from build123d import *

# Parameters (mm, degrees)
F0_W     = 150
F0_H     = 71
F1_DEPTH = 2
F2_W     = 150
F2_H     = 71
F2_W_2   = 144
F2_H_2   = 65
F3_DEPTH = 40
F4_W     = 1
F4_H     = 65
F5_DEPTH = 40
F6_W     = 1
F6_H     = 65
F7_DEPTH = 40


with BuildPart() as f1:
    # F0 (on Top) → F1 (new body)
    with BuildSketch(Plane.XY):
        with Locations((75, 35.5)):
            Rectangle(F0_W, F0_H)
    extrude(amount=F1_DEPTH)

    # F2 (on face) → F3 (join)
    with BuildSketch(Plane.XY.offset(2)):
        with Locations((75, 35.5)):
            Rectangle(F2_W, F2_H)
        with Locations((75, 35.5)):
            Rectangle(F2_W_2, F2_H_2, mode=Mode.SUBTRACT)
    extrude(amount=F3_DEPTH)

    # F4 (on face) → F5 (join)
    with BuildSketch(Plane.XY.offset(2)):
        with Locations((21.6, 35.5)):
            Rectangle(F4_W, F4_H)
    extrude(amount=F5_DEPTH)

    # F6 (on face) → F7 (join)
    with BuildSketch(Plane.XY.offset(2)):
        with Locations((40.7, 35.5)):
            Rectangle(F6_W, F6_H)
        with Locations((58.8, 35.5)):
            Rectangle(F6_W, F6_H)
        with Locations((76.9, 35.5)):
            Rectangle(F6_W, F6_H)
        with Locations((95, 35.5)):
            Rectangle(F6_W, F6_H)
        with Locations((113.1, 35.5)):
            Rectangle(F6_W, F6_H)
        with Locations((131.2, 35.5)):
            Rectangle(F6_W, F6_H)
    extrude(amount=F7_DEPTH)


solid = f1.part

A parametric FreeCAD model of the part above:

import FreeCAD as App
import Part
import Sketcher

V = App.Vector
Q = App.Units.Quantity


def add_polygon(sketch, points):
    """Adds a closed chain of lines whose ends are joined by coincident constraints."""
    first, n = sketch.GeometryCount, len(points)
    for a, b in zip(points, points[1:] + points[:1]):
        sketch.addGeometry(Part.LineSegment(App.Vector(*a, 0), App.Vector(*b, 0)), False)
    for i in range(n):
        sketch.addConstraint(Sketcher.Constraint("Coincident", first + i, 2, first + (i + 1) % n, 1))

doc = App.newDocument("Part")
params = doc.addObject("Spreadsheet::Sheet", "Params")
for row, (alias, value) in enumerate([
    ("sketch1_width", "150 mm"),
    ("sketch1_height", "71 mm"),
    ("pad1_length", "2 mm"),
    ("sketch2_width", "150 mm"),
    ("sketch2_width2", "144 mm"),
    ("sketch2_height", "71 mm"),
    ("sketch2_height2", "65 mm"),
    ("pad2_length", "40 mm"),
    ("sketch3_width", "1 mm"),
    ("sketch3_height", "65 mm"),
    ("pad3_length", "40 mm"),
    ("sketch4_width", "1 mm"),
    ("sketch4_height", "65 mm"),
    ("pad4_length", "40 mm"),
], start=1):
    params.set(f"A{row}", alias)
    params.set(f"B{row}", "=" + value)
    params.setAlias(f"B{row}", alias)

body = doc.addObject("PartDesign::Body", "Body")

sketch1 = doc.addObject("Sketcher::SketchObject", "Sketch")
body.addObject(sketch1)
sketch1.AttachmentSupport = (doc.XY_Plane, [""])
sketch1.MapMode = "FlatFace"
add_polygon(sketch1, [(0, 71), (0, 0), (150, 0), (150, 71)])
sketch1.addConstraint(Sketcher.Constraint("Vertical", 0))
sketch1.addConstraint(Sketcher.Constraint("Horizontal", 1))
sketch1.addConstraint(Sketcher.Constraint("Vertical", 2))
sketch1.addConstraint(Sketcher.Constraint("Horizontal", 3))
sketch1.addConstraint(Sketcher.Constraint("Coincident", 0, 2, -1, 1))
sketch1.addConstraint(Sketcher.Constraint("DistanceX", 1, 1, 1, 2, Q("150 mm")))
sketch1.addConstraint(Sketcher.Constraint("DistanceY", 0, 2, 0, 1, Q("71 mm")))
sketch1.setExpression("Constraints[9]", "Params.sketch1_width")
sketch1.setExpression("Constraints[10]", "Params.sketch1_height")
pad1 = doc.addObject("PartDesign::Pad", "Pad")
body.addObject(pad1)
pad1.Profile = sketch1
pad1.setExpression("Length", "Params.pad1_length")

sketch2 = doc.addObject("Sketcher::SketchObject", "Sketch001")
body.addObject(sketch2)
sketch2.AttachmentSupport = (doc.XY_Plane, [""])
sketch2.MapMode = "FlatFace"
sketch2.AttachmentOffset = App.Placement(V(0, 0, 2), App.Rotation())
add_polygon(sketch2, [(0, 71), (0, 0), (150, 0), (150, 71)])
add_polygon(sketch2, [(147, 3), (3, 3), (3, 68), (147, 68)])
sketch2.addConstraint(Sketcher.Constraint("Vertical", 0))
sketch2.addConstraint(Sketcher.Constraint("Horizontal", 1))
sketch2.addConstraint(Sketcher.Constraint("Vertical", 2))
sketch2.addConstraint(Sketcher.Constraint("Horizontal", 3))
sketch2.addConstraint(Sketcher.Constraint("Horizontal", 4))
sketch2.addConstraint(Sketcher.Constraint("Vertical", 5))
sketch2.addConstraint(Sketcher.Constraint("Horizontal", 6))
sketch2.addConstraint(Sketcher.Constraint("Vertical", 7))
sketch2.addConstraint(Sketcher.Constraint("Coincident", 0, 2, -1, 1))
sketch2.addConstraint(Sketcher.Constraint("DistanceX", 1, 1, 1, 2, Q("150 mm")))
sketch2.addConstraint(Sketcher.Constraint("DistanceX", 4, 2, 4, 1, Q("144 mm")))
sketch2.addConstraint(Sketcher.Constraint("DistanceY", 0, 2, 0, 1, Q("71 mm")))
sketch2.addConstraint(Sketcher.Constraint("DistanceY", 5, 1, 5, 2, Q("65 mm")))
sketch2.addConstraint(Sketcher.Constraint("DistanceX", -1, 1, 4, 2, Q("3 mm")))
sketch2.addConstraint(Sketcher.Constraint("DistanceY", -1, 1, 4, 2, Q("3 mm")))
sketch2.setExpression("Constraints[17]", "Params.sketch2_width")
sketch2.setExpression("Constraints[18]", "Params.sketch2_width2")
sketch2.setExpression("Constraints[19]", "Params.sketch2_height")
sketch2.setExpression("Constraints[20]", "Params.sketch2_height2")
pad2 = doc.addObject("PartDesign::Pad", "Pad001")
body.addObject(pad2)
pad2.Profile = sketch2
pad2.setExpression("Length", "Params.pad2_length")

sketch3 = doc.addObject("Sketcher::SketchObject", "Sketch002")
body.addObject(sketch3)
sketch3.AttachmentSupport = (doc.XY_Plane, [""])
sketch3.MapMode = "FlatFace"
sketch3.AttachmentOffset = App.Placement(V(0, 0, 2), App.Rotation())
add_polygon(sketch3, [(21.1, 68), (21.1, 3), (22.1, 3), (22.1, 68)])
sketch3.addConstraint(Sketcher.Constraint("Vertical", 0))
sketch3.addConstraint(Sketcher.Constraint("Horizontal", 1))
sketch3.addConstraint(Sketcher.Constraint("Vertical", 2))
sketch3.addConstraint(Sketcher.Constraint("Horizontal", 3))
sketch3.addConstraint(Sketcher.Constraint("DistanceX", 1, 1, 1, 2, Q("1 mm")))
sketch3.addConstraint(Sketcher.Constraint("DistanceY", 0, 2, 0, 1, Q("65 mm")))
sketch3.addConstraint(Sketcher.Constraint("DistanceY", -1, 1, 0, 2, Q("3 mm")))
sketch3.addConstraint(Sketcher.Constraint("DistanceX", -1, 1, 0, 2, Q("21.1 mm")))
sketch3.setExpression("Constraints[8]", "Params.sketch3_width")
sketch3.setExpression("Constraints[9]", "Params.sketch3_height")
pad3 = doc.addObject("PartDesign::Pad", "Pad002")
body.addObject(pad3)
pad3.Profile = sketch3
pad3.setExpression("Length", "Params.pad3_length")

sketch4 = doc.addObject("Sketcher::SketchObject", "Sketch003")
body.addObject(sketch4)
sketch4.AttachmentSupport = (doc.XY_Plane, [""])
sketch4.MapMode = "FlatFace"
sketch4.AttachmentOffset = App.Placement(V(0, 0, 2), App.Rotation())
add_polygon(sketch4, [(40.2, 68), (40.2, 3), (41.2, 3), (41.2, 68)])
add_polygon(sketch4, [(58.3, 68), (58.3, 3), (59.3, 3), (59.3, 68)])
add_polygon(sketch4, [(76.4, 68), (76.4, 3), (77.4, 3), (77.4, 68)])
add_polygon(sketch4, [(94.5, 68), (94.5, 3), (95.5, 3), (95.5, 68)])
add_polygon(sketch4, [(112.6, 68), (112.6, 3), (113.6, 3), (113.6, 68)])
add_polygon(sketch4, [(130.7, 68), (130.7, 3), (131.7, 3), (131.7, 68)])
sketch4.addConstraint(Sketcher.Constraint("Vertical", 0))
sketch4.addConstraint(Sketcher.Constraint("Horizontal", 1))
sketch4.addConstraint(Sketcher.Constraint("Vertical", 2))
sketch4.addConstraint(Sketcher.Constraint("Horizontal", 3))
sketch4.addConstraint(Sketcher.Constraint("Vertical", 4))
sketch4.addConstraint(Sketcher.Constraint("Horizontal", 5))
sketch4.addConstraint(Sketcher.Constraint("Vertical", 6))
sketch4.addConstraint(Sketcher.Constraint("Horizontal", 7))
sketch4.addConstraint(Sketcher.Constraint("Vertical", 8))
sketch4.addConstraint(Sketcher.Constraint("Horizontal", 9))
sketch4.addConstraint(Sketcher.Constraint("Vertical", 10))
sketch4.addConstraint(Sketcher.Constraint("Horizontal", 11))
sketch4.addConstraint(Sketcher.Constraint("Vertical", 12))
sketch4.addConstraint(Sketcher.Constraint("Horizontal", 13))
sketch4.addConstraint(Sketcher.Constraint("Vertical", 14))
sketch4.addConstraint(Sketcher.Constraint("Horizontal", 15))
sketch4.addConstraint(Sketcher.Constraint("Vertical", 16))
sketch4.addConstraint(Sketcher.Constraint("Horizontal", 17))
sketch4.addConstraint(Sketcher.Constraint("Vertical", 18))
sketch4.addConstraint(Sketcher.Constraint("Horizontal", 19))
sketch4.addConstraint(Sketcher.Constraint("Vertical", 20))
sketch4.addConstraint(Sketcher.Constraint("Horizontal", 21))
sketch4.addConstraint(Sketcher.Constraint("Vertical", 22))
sketch4.addConstraint(Sketcher.Constraint("Horizontal", 23))
sketch4.addConstraint(Sketcher.Constraint("Horizontal", 1, 2, 4, 2))
sketch4.addConstraint(Sketcher.Constraint("Horizontal", 3, 2, 6, 2))
sketch4.addConstraint(Sketcher.Constraint("Horizontal", 5, 2, 8, 2))
sketch4.addConstraint(Sketcher.Constraint("Horizontal", 7, 2, 10, 2))
sketch4.addConstraint(Sketcher.Constraint("Horizontal", 9, 2, 12, 2))
sketch4.addConstraint(Sketcher.Constraint("Horizontal", 11, 2, 14, 2))
sketch4.addConstraint(Sketcher.Constraint("Horizontal", 13, 2, 16, 2))
sketch4.addConstraint(Sketcher.Constraint("Horizontal", 15, 2, 18, 2))
sketch4.addConstraint(Sketcher.Constraint("Horizontal", 17, 2, 20, 2))
sketch4.addConstraint(Sketcher.Constraint("Horizontal", 19, 2, 22, 2))
sketch4.addConstraint(Sketcher.Constraint("Equal", 3, 5))
sketch4.addConstraint(Sketcher.Constraint("Equal", 7, 9))
sketch4.addConstraint(Sketcher.Constraint("Equal", 11, 13))
sketch4.addConstraint(Sketcher.Constraint("Equal", 15, 17))
sketch4.addConstraint(Sketcher.Constraint("Equal", 19, 21))
sketch4.addConstraint(Sketcher.Constraint("DistanceX", 1, 1, 1, 2, Q("1 mm")))
sketch4.addConstraint(Sketcher.Constraint("DistanceY", 0, 2, 0, 1, Q("65 mm")))
sketch4.addConstraint(Sketcher.Constraint("DistanceY", -1, 1, 0, 2, Q("3 mm")))
sketch4.addConstraint(Sketcher.Constraint("DistanceX", -1, 1, 0, 2, Q("40.2 mm")))
sketch4.addConstraint(Sketcher.Constraint("DistanceX", -1, 1, 4, 2, Q("58.3 mm")))
sketch4.addConstraint(Sketcher.Constraint("DistanceX", -1, 1, 8, 2, Q("76.4 mm")))
sketch4.addConstraint(Sketcher.Constraint("DistanceX", -1, 1, 12, 2, Q("94.5 mm")))
sketch4.addConstraint(Sketcher.Constraint("DistanceX", -1, 1, 16, 2, Q("112.6 mm")))
sketch4.addConstraint(Sketcher.Constraint("DistanceX", -1, 1, 20, 2, Q("130.7 mm")))
sketch4.setExpression("Constraints[63]", "Params.sketch4_width")
sketch4.setExpression("Constraints[64]", "Params.sketch4_height")
pad4 = doc.addObject("PartDesign::Pad", "Pad003")
body.addObject(pad4)
pad4.Profile = sketch4
pad4.setExpression("Length", "Params.pad4_length")

doc.recompute()
